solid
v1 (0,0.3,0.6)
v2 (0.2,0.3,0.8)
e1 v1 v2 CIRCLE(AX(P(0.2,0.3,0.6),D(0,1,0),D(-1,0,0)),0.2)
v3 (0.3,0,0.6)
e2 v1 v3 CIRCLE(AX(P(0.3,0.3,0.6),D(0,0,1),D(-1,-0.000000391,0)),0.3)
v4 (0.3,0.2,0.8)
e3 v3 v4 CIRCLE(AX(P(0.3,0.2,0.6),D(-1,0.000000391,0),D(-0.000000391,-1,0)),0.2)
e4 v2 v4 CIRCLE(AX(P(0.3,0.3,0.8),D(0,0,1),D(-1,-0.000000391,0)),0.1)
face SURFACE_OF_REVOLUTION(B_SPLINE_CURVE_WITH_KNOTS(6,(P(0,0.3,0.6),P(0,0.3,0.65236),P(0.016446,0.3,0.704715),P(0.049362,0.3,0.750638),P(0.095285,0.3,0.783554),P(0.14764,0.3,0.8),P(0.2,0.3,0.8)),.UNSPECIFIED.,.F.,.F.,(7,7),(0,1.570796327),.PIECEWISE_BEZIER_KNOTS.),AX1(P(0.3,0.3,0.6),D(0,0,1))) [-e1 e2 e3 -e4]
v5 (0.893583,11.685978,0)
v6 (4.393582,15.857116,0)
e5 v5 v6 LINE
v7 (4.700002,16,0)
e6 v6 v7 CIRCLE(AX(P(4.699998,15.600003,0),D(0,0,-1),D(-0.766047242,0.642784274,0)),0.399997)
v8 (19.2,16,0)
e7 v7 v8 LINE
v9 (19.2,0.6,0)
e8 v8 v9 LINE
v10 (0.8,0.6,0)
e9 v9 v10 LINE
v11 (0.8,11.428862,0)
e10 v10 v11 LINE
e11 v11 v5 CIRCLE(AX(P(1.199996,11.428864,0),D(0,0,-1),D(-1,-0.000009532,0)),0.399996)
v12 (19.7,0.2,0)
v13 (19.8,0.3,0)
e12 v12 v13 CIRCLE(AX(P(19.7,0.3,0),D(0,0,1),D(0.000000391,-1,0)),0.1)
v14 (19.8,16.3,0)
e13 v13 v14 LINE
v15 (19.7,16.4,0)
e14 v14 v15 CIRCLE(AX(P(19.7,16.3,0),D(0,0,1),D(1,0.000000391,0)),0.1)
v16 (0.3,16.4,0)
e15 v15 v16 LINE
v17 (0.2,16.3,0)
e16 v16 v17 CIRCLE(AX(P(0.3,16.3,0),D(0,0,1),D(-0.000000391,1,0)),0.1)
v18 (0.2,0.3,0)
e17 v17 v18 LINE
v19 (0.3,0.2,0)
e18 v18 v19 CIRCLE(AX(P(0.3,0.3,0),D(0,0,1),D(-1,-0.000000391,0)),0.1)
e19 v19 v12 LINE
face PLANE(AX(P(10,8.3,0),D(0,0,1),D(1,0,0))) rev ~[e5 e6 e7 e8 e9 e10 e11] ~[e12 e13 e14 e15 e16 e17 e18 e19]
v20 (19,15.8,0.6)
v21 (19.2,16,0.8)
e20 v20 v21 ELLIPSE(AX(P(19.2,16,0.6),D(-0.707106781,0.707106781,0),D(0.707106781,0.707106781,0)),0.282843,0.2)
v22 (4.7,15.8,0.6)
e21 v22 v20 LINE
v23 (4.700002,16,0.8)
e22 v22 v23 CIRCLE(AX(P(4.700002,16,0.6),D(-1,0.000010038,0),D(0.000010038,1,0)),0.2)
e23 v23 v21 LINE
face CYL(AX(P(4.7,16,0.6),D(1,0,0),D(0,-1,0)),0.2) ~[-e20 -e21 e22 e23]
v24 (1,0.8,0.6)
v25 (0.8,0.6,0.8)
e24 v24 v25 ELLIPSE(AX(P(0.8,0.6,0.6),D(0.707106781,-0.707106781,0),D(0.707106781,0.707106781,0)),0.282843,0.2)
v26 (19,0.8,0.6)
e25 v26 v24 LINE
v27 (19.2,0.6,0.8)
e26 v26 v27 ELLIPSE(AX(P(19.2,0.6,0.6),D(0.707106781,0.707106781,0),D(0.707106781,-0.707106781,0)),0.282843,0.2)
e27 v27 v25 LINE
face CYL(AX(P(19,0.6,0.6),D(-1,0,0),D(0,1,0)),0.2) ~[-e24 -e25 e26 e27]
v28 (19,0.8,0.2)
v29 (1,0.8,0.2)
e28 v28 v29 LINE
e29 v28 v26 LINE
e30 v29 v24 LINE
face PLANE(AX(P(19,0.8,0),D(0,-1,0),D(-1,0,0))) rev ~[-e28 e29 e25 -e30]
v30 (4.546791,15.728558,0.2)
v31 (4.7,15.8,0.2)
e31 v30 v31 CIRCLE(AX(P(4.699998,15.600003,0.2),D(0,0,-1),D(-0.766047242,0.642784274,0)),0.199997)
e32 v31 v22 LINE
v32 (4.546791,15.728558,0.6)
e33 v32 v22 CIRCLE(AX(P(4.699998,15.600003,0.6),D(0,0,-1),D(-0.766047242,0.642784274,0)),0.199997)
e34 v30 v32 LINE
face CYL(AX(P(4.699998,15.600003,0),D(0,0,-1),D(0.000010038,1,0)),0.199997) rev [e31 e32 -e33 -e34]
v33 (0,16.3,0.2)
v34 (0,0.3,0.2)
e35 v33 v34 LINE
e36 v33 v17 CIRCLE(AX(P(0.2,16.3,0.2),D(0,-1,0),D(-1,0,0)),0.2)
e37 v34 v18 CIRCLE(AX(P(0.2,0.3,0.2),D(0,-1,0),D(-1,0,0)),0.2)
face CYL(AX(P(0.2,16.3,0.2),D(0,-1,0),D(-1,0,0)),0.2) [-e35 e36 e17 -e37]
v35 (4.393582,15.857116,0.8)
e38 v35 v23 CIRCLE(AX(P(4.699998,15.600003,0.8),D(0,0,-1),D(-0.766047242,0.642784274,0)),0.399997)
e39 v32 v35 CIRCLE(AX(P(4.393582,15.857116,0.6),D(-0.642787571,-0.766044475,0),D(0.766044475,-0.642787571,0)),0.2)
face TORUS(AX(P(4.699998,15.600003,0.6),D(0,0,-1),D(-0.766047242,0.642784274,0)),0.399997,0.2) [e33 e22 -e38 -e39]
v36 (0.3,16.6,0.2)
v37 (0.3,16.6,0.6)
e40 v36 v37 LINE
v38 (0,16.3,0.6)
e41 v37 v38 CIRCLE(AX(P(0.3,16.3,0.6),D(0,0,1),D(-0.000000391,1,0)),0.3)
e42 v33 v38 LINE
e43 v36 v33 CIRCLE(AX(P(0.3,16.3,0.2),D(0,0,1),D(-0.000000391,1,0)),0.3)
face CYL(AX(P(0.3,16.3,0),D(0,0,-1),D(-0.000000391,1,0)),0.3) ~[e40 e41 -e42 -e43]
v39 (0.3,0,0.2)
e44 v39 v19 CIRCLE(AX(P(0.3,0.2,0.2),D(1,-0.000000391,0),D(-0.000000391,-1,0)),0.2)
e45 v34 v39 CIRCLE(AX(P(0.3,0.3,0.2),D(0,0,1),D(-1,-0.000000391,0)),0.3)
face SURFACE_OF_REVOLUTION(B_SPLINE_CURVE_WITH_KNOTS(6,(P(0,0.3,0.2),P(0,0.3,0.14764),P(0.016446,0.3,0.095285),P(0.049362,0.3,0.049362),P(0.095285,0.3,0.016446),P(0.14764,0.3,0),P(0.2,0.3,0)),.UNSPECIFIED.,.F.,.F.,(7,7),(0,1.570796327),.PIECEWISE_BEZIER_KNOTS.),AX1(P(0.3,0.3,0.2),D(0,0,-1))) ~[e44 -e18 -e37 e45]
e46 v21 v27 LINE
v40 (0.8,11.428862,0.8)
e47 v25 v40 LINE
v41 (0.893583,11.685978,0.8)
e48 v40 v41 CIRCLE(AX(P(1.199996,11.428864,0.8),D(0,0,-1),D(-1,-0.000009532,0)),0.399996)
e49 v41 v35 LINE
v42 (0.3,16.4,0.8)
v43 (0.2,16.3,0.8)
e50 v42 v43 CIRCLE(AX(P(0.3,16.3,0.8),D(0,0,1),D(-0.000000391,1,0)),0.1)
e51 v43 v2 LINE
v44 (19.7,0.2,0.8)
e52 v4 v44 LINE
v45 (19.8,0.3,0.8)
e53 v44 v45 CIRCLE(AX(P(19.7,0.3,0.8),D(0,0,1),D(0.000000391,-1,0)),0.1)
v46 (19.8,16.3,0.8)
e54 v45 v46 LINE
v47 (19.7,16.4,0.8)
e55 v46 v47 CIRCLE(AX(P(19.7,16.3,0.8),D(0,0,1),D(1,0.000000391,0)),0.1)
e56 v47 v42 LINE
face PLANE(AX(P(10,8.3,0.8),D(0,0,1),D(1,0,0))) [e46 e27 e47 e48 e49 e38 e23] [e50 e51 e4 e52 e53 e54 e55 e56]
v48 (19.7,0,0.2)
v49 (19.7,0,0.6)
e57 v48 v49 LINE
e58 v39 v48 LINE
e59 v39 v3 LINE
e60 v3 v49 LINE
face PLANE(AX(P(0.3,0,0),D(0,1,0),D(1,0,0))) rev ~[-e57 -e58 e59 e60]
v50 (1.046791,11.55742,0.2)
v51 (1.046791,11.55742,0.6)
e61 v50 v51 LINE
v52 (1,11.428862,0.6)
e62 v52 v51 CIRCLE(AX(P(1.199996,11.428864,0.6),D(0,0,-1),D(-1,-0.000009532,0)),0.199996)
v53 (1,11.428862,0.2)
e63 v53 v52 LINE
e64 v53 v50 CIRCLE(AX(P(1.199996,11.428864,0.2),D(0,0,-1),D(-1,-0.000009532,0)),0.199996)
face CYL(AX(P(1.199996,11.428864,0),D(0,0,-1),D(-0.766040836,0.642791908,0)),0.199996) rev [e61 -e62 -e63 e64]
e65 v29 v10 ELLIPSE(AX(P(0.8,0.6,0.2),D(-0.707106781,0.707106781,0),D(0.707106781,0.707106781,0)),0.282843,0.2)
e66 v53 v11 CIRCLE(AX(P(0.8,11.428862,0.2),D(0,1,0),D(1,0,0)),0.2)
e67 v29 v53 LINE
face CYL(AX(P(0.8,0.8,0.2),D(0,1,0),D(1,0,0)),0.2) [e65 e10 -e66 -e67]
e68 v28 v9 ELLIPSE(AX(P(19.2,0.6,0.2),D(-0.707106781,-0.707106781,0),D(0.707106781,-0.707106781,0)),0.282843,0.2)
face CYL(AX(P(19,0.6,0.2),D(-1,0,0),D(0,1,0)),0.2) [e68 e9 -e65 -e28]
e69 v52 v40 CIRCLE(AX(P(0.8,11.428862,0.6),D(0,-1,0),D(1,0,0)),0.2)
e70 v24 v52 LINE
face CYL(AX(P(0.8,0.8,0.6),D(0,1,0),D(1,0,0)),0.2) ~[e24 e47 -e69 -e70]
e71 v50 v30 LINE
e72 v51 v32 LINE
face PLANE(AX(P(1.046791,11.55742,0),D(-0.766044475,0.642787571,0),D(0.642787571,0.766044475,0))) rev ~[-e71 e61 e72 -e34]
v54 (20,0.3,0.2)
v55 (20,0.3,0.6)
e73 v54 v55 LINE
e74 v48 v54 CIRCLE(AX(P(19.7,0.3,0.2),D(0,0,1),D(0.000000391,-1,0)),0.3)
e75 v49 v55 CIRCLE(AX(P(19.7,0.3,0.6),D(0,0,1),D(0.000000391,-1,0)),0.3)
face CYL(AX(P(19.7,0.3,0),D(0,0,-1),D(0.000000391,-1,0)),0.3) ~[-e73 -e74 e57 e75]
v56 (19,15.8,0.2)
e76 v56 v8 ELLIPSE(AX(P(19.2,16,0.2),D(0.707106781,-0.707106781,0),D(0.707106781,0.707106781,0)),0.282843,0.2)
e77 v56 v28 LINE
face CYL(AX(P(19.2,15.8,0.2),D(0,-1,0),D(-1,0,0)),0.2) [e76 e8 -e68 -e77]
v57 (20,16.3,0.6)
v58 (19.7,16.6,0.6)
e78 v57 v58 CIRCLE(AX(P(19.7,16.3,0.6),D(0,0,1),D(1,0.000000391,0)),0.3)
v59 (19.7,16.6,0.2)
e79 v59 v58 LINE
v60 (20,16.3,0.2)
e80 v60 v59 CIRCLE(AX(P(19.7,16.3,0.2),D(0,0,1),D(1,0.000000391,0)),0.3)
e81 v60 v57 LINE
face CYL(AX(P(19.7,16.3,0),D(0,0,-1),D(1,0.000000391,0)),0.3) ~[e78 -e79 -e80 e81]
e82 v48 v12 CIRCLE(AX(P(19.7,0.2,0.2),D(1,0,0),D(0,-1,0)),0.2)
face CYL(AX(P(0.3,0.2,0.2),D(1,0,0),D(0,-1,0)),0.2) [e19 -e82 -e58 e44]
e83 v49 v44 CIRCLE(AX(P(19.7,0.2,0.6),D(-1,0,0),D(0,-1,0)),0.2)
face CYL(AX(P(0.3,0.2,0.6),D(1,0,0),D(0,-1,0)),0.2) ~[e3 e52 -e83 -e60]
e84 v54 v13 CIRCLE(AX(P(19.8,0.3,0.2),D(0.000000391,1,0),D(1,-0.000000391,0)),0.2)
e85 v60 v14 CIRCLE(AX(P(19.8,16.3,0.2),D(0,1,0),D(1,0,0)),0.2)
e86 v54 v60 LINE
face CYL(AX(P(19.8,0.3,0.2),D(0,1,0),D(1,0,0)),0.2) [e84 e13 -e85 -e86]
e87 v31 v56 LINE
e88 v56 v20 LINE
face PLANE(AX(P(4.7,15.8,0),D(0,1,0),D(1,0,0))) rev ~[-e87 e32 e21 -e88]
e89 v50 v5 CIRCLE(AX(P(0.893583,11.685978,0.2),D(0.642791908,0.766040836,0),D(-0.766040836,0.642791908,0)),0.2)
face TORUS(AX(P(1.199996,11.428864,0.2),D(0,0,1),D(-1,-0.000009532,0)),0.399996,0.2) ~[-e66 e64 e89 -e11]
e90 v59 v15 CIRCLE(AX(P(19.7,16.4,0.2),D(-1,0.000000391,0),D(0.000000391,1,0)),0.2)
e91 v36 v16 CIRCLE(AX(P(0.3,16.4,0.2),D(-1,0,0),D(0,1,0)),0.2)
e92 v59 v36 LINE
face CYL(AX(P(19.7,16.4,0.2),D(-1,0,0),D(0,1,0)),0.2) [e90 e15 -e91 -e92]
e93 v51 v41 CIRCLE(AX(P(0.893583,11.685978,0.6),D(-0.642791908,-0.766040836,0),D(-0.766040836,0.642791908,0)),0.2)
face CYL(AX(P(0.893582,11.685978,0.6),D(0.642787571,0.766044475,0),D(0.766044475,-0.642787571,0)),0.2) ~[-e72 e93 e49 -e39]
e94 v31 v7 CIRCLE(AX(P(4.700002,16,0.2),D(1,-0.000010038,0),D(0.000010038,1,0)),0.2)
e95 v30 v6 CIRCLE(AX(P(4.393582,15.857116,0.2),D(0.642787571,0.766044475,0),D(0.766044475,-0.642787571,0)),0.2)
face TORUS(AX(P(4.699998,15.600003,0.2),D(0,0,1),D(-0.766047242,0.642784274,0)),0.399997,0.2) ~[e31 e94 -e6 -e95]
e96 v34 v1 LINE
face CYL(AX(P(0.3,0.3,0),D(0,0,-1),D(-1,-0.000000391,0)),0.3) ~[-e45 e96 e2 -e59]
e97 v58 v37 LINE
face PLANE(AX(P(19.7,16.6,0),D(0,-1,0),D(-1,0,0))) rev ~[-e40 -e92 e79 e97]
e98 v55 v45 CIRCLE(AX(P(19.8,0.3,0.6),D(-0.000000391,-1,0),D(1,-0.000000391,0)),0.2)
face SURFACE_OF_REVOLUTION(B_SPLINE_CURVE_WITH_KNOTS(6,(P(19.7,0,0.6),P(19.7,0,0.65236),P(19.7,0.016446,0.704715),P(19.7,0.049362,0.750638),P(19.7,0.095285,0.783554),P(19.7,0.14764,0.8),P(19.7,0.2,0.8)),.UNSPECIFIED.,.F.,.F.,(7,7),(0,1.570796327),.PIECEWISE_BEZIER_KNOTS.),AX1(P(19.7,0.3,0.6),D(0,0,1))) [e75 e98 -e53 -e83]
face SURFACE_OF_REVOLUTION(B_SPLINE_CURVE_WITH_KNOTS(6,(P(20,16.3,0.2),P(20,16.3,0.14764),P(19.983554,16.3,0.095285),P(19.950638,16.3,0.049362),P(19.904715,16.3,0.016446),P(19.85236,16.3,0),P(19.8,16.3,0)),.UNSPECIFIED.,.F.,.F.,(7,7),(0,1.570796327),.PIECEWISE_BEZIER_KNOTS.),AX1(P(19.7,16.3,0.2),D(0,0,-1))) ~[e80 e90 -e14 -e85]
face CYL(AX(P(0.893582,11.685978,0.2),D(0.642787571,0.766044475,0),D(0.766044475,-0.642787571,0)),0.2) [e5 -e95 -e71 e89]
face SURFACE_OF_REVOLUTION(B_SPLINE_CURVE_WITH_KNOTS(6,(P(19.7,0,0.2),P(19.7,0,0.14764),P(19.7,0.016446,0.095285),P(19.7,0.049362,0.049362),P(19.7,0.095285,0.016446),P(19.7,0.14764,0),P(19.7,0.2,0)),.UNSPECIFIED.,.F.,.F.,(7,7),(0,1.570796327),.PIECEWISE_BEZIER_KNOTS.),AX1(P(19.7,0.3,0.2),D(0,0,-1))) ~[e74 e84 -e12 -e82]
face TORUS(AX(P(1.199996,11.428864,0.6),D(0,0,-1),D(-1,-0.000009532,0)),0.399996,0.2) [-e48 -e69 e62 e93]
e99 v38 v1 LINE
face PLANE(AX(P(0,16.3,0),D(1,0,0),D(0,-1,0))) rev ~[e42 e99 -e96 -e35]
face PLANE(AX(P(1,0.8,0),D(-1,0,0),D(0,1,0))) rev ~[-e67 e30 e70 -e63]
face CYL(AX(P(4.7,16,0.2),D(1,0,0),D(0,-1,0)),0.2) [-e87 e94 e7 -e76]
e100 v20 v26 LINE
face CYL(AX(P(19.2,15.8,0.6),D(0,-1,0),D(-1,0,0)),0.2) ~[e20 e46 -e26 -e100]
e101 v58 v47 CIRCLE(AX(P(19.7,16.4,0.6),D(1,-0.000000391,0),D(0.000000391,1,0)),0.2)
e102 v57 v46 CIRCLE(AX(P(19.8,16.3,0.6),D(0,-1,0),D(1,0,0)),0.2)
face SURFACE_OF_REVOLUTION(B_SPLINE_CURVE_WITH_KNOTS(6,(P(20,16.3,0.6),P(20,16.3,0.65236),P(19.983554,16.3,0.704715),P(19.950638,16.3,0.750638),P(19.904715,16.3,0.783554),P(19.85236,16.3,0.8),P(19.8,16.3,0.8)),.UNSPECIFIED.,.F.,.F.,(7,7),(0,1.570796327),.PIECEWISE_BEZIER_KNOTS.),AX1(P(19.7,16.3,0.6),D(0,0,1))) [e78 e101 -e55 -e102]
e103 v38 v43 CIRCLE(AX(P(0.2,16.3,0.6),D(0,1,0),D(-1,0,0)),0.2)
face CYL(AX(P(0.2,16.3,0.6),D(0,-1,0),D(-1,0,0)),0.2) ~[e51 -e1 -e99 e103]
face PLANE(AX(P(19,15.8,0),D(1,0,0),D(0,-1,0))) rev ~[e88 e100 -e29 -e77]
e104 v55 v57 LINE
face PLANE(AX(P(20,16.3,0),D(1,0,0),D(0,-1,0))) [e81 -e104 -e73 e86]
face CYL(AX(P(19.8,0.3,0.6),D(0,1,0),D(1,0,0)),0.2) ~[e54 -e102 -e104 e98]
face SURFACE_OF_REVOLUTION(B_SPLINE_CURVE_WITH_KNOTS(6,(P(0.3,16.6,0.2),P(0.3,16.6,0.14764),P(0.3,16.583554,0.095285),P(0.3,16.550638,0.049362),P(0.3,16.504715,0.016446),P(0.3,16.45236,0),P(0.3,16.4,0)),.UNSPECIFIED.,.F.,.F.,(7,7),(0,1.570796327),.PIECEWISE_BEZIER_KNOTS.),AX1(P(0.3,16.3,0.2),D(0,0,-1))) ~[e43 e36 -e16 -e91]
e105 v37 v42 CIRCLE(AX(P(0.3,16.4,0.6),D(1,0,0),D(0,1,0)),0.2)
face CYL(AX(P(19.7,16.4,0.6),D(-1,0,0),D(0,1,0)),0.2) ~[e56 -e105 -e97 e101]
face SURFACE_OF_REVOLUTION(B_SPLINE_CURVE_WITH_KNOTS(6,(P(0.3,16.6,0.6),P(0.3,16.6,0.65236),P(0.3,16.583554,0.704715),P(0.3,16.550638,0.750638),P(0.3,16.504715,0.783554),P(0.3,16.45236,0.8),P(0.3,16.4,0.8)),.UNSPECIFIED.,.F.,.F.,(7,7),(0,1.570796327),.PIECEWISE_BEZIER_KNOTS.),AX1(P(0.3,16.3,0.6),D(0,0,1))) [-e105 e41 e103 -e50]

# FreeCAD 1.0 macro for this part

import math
import FreeCAD as App
import Part
import Sketcher
Q = App.Units.Quantity


def edges_at(feature, points):
    """Names of the edges that pass closest to the given points."""
    edges = feature.Shape.Edges
    near = lambda p: min(range(len(edges)), key=lambda i: edges[i].distToShape(Part.Vertex(*p))[0])
    return sorted({f"Edge{near(p) + 1}" for p in points})

doc = App.newDocument("Part")
body = doc.addObject("PartDesign::Body", "Body")

# Sketch on XY plane
sketch1 = doc.addObject("Sketcher::SketchObject", "Sketch")
body.addObject(sketch1)
sketch1.AttachmentSupport = (doc.XY_Plane, [""])
sketch1.MapMode = "FlatFace"
sketch1.addGeometry([
    Part.LineSegment(App.Vector(0.3, 0, 0), App.Vector(19.7, 0, 0)),  # 0
    Part.ArcOfCircle(Part.Circle(App.Vector(19.7, 0.3, 0), App.Vector(0, 0, 1), 0.3), math.radians(-89.999978), math.radians(-0.000022)),  # 1
    Part.LineSegment(App.Vector(20, 0.3, 0), App.Vector(20, 16.3, 0)),  # 2
    Part.ArcOfCircle(Part.Circle(App.Vector(19.7, 16.3, 0), App.Vector(0, 0, 1), 0.3), math.radians(0.000022), math.radians(89.999978)),  # 3
    Part.LineSegment(App.Vector(19.7, 16.6, 0), App.Vector(0.3, 16.6, 0)),  # 4
    Part.ArcOfCircle(Part.Circle(App.Vector(0.3, 16.3, 0), App.Vector(0, 0, 1), 0.3), math.radians(90.000022), math.radians(179.999978)),  # 5
    Part.LineSegment(App.Vector(0, 16.3, 0), App.Vector(0, 0.3, 0)),  # 6
    Part.ArcOfCircle(Part.Circle(App.Vector(0.3, 0.3, 0), App.Vector(0, 0, 1), 0.3), math.radians(-179.999978), math.radians(-90.000022)),  # 7
    Part.LineSegment(App.Vector(4.7, 15.8, 0), App.Vector(19, 15.8, 0)),  # 8
    Part.LineSegment(App.Vector(19, 15.8, 0), App.Vector(19, 0.8, 0)),  # 9
    Part.LineSegment(App.Vector(19, 0.8, 0), App.Vector(1, 0.8, 0)),  # 10
    Part.LineSegment(App.Vector(1, 0.8, 0), App.Vector(1, 11.428862, 0)),  # 11
    Part.ArcOfCircle(Part.Circle(App.Vector(1.199996, 11.428864, 0), App.Vector(0, 0, 1), 0.199996), math.radians(139.999679), math.radians(180.000546)),  # 12
    Part.LineSegment(App.Vector(1.046791, 11.55742, 0), App.Vector(4.546791, 15.728558, 0)),  # 13
    Part.ArcOfCircle(Part.Circle(App.Vector(4.699998, 15.600003, 0), App.Vector(0, 0, 1), 0.199997), math.radians(89.999425), math.radians(140.000249)),  # 14
], False)
sketch1.addConstraint([
    Sketcher.Constraint("Tangent", 0, 2, 1, 1),
    Sketcher.Constraint("Tangent", 1, 2, 2, 1),
    Sketcher.Constraint("Tangent", 2, 2, 3, 1),
    Sketcher.Constraint("Tangent", 3, 2, 4, 1),
    Sketcher.Constraint("Tangent", 4, 2, 5, 1),
    Sketcher.Constraint("Tangent", 5, 2, 6, 1),
    Sketcher.Constraint("Tangent", 6, 2, 7, 1),
    Sketcher.Constraint("Tangent", 7, 2, 0, 1),
    Sketcher.Constraint("Coincident", 8, 2, 9, 1),
    Sketcher.Constraint("Coincident", 9, 2, 10, 1),
    Sketcher.Constraint("Coincident", 10, 2, 11, 1),
    Sketcher.Constraint("Coincident", 11, 2, 12, 2),
    Sketcher.Constraint("Coincident", 12, 1, 13, 1),
    Sketcher.Constraint("Coincident", 13, 2, 14, 2),
    Sketcher.Constraint("Coincident", 14, 1, 8, 1),
    Sketcher.Constraint("Horizontal", 0),
    Sketcher.Constraint("Vertical", 2),
    Sketcher.Constraint("Horizontal", 4),
    Sketcher.Constraint("Vertical", 6),
    Sketcher.Constraint("Horizontal", 8),
    Sketcher.Constraint("Vertical", 9),
    Sketcher.Constraint("Horizontal", 10),
    Sketcher.Constraint("Vertical", 11),
    Sketcher.Constraint("Equal", 1, 3),
    Sketcher.Constraint("Equal", 3, 5),
    Sketcher.Constraint("Equal", 5, 7),
    Sketcher.Constraint("Equal", 12, 14),
    Sketcher.Constraint("PointOnObject", 0, 2, -1),
    Sketcher.Constraint("PointOnObject", 5, 2, -2),
    Sketcher.Constraint("Horizontal", 12, 3, 11, 2),
    Sketcher.Constraint("Radius", 1, 0.3),
    Sketcher.Constraint("DistanceX", 10, 2, 10, 1, 18.0),
    Sketcher.Constraint("DistanceY", 2, 1, 2, 2, 16.0),
    Sketcher.Constraint("DistanceY", 9, 2, 9, 1, 15.0),
    Sketcher.Constraint("Angle", 13, Q("50.000003 deg")),
    Sketcher.Constraint("DistanceX", 0, 1, 0, 2, 19.4),
    Sketcher.Constraint("DistanceX", 8, 1, 8, 2, 14.3),
    Sketcher.Constraint("DistanceX", -1, 1, 8, 2, 19.0),
    Sketcher.Constraint("DistanceX", 14, 3, 3, 3, 15.000002),
    Sketcher.Constraint("DistanceY", -1, 1, 8, 2, 15.8),
    Sketcher.Constraint("DistanceX", 12, 3, 14, 3, 3.500002),
    Sketcher.Constraint("DistanceX", 12, 1, 13, 2, 3.5),
    Sketcher.Constraint("DistanceX", -1, 1, 12, 1, 1.046791),
])
pad1 = doc.addObject("PartDesign::Pad", "Pad")
body.addObject(pad1)
pad1.Profile = sketch1
pad1.Length = 0.8
doc.recompute()

fillet = doc.addObject("PartDesign::Fillet", "Fillet")
body.addObject(fillet)
fillet.Base = (pad1, edges_at(pad1, [
    (0, 8.3, 0.8),
    (0, 8.3, 0),
    (1, 6.114, 0),
    (19, 8.3, 0),
    (10, 0.8, 0),
    (11.85, 15.8, 0),
    (2.797, 13.643, 0),
    (2.797, 13.643, 0.8),
    (1, 6.114, 0.8),
    (11.85, 15.8, 0.8),
    (19, 8.3, 0.8),
    (10, 0.8, 0.8),
]))
fillet.Radius = 0.2

doc.recompute()
